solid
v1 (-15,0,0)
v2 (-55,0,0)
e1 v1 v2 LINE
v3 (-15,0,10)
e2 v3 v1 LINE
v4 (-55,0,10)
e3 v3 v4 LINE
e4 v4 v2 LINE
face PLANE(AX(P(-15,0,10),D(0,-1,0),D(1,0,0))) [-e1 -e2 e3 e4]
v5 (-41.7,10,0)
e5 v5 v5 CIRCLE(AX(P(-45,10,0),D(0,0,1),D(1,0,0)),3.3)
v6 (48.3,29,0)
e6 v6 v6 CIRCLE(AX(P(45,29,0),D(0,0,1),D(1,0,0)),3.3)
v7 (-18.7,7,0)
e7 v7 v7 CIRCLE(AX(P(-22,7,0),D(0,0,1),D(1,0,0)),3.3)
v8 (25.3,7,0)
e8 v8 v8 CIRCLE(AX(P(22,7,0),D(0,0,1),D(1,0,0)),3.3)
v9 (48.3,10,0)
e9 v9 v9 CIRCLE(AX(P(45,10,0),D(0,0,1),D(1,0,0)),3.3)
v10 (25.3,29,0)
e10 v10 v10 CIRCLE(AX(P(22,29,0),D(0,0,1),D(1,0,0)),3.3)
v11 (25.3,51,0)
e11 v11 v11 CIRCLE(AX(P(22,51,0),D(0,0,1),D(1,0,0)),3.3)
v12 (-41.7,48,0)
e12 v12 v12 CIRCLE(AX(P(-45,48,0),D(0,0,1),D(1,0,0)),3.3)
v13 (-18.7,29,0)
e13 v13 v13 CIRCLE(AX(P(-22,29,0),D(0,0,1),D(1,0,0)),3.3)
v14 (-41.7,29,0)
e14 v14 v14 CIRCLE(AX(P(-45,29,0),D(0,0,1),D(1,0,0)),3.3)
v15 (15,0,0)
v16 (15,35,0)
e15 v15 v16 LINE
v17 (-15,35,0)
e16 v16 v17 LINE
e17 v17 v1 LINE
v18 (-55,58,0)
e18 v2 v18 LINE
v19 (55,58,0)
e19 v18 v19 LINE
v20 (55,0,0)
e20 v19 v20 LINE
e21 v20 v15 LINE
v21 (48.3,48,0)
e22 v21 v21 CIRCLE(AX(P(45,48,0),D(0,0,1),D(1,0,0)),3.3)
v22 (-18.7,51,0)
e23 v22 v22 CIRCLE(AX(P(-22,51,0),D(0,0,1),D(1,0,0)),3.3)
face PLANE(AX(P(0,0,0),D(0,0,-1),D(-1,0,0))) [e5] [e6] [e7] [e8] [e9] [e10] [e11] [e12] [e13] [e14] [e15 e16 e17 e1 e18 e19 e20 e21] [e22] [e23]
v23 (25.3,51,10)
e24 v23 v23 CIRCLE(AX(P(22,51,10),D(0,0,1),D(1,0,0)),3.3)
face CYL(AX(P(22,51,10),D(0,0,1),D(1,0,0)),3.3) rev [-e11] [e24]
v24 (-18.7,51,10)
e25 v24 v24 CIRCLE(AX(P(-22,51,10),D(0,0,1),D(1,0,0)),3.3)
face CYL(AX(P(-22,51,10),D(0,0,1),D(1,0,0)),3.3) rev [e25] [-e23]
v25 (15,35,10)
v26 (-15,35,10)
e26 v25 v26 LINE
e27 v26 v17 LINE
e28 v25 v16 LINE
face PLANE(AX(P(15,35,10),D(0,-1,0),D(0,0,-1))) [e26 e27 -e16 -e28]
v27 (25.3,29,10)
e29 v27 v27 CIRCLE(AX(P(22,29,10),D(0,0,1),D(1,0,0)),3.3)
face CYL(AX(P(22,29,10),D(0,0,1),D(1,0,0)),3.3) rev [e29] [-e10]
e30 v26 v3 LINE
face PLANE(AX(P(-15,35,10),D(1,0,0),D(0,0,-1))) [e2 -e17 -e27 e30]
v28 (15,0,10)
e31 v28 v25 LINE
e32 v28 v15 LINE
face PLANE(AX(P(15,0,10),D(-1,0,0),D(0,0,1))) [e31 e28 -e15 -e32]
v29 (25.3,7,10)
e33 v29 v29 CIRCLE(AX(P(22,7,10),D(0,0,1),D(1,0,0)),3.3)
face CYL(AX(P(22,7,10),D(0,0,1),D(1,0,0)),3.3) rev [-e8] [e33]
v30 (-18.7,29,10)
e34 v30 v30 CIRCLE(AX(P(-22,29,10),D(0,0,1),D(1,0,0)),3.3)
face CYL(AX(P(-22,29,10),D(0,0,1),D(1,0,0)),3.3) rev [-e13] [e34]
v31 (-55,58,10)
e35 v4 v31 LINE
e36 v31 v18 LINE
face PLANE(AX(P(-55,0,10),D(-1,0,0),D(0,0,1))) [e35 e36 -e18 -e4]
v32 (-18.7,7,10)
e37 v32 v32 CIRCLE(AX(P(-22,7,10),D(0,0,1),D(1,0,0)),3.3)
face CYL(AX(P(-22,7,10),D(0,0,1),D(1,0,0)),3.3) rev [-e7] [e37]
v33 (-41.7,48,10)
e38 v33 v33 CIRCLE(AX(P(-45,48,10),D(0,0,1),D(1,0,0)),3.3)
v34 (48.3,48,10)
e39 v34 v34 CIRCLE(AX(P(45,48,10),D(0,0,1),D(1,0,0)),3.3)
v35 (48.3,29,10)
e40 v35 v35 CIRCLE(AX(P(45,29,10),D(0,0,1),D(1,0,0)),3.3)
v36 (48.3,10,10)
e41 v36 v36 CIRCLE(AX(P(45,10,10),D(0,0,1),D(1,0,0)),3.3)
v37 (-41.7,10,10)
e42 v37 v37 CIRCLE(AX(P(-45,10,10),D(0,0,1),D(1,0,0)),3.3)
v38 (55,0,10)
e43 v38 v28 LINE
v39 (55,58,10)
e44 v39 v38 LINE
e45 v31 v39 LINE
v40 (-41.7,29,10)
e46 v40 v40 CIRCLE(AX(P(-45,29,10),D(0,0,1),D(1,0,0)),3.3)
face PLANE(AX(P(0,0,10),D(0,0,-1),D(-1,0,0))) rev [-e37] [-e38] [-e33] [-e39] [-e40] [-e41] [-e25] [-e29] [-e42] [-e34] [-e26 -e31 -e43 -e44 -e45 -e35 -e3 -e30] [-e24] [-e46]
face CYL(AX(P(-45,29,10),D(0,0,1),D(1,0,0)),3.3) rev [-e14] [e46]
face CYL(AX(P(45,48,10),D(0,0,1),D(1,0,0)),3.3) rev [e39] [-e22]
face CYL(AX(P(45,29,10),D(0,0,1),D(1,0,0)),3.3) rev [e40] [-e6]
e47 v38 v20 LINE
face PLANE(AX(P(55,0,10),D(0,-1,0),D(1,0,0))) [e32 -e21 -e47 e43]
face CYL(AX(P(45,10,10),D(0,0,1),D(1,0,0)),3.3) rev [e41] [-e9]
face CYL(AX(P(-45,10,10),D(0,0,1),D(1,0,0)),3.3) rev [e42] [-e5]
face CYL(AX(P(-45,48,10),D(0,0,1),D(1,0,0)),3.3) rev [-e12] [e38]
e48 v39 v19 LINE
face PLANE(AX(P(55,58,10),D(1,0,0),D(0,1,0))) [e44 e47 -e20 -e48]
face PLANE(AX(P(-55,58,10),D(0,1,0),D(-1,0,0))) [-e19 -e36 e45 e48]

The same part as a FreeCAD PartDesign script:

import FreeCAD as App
import Part
import Sketcher
Q = App.Units.Quantity

doc = App.newDocument("Part")
body = doc.addObject("PartDesign::Body", "Body")

# Sketch on XY plane
sketch1 = doc.addObject("Sketcher::SketchObject", "Sketch")
body.addObject(sketch1)
sketch1.AttachmentSupport = (doc.XY_Plane, [""])
sketch1.MapMode = "FlatFace"
sketch1.addGeometry([
    Part.LineSegment(App.Vector(15, 0, 0), App.Vector(55, 0, 0)),  # 0
    Part.LineSegment(App.Vector(55, 0, 0), App.Vector(55, 58, 0)),  # 1
    Part.LineSegment(App.Vector(55, 58, 0), App.Vector(-55, 58, 0)),  # 2
    Part.LineSegment(App.Vector(-55, 58, 0), App.Vector(-55, 0, 0)),  # 3
    Part.LineSegment(App.Vector(-55, 0, 0), App.Vector(-15, 0, 0)),  # 4
    Part.LineSegment(App.Vector(-15, 0, 0), App.Vector(-15, 35, 0)),  # 5
    Part.LineSegment(App.Vector(-15, 35, 0), App.Vector(15, 35, 0)),  # 6
    Part.LineSegment(App.Vector(15, 35, 0), App.Vector(15, 0, 0)),  # 7
], False)
sketch1.addConstraint([
    Sketcher.Constraint("Coincident", 0, 2, 1, 1),
    Sketcher.Constraint("Coincident", 1, 2, 2, 1),
    Sketcher.Constraint("Coincident", 2, 2, 3, 1),
    Sketcher.Constraint("Coincident", 3, 2, 4, 1),
    Sketcher.Constraint("Coincident", 4, 2, 5, 1),
    Sketcher.Constraint("Coincident", 5, 2, 6, 1),
    Sketcher.Constraint("Coincident", 6, 2, 7, 1),
    Sketcher.Constraint("Coincident", 7, 2, 0, 1),
    Sketcher.Constraint("Horizontal", 0),
    Sketcher.Constraint("Vertical", 1),
    Sketcher.Constraint("Horizontal", 2),
    Sketcher.Constraint("Vertical", 3),
    Sketcher.Constraint("Horizontal", 4),
    Sketcher.Constraint("Vertical", 5),
    Sketcher.Constraint("Horizontal", 6),
    Sketcher.Constraint("Vertical", 7),
    Sketcher.Constraint("Symmetric", 0, 2, 3, 2, -1, 1),
    Sketcher.Constraint("Symmetric", 4, 2, 7, 2, -2),
    Sketcher.Constraint("DistanceX", 0, 1, 0, 2, Q("40 mm")),
    Sketcher.Constraint("DistanceX", 2, 2, 2, 1, Q("110 mm")),
    Sketcher.Constraint("DistanceY", 1, 1, 1, 2, Q("58 mm")),
    Sketcher.Constraint("DistanceY", 5, 1, 5, 2, Q("35 mm")),
])
pad1 = doc.addObject("PartDesign::Pad", "Pad")
body.addObject(pad1)
pad1.Profile = sketch1
pad1.Length = 10

# Sketch on XY plane
sketch2 = doc.addObject("Sketcher::SketchObject", "Sketch001")
body.addObject(sketch2)
sketch2.AttachmentSupport = (doc.XY_Plane, [""])
sketch2.MapMode = "FlatFace"
sketch2.AttachmentOffset = App.Placement(App.Vector(0, 0, 10), App.Rotation())
sketch2.addGeometry([
    Part.Circle(App.Vector(45, 10, 0), App.Vector(0, 0, 1), 3.3),  # 0
    Part.Circle(App.Vector(45, 48, 0), App.Vector(0, 0, 1), 3.3),  # 1
    Part.Circle(App.Vector(22, 7, 0), App.Vector(0, 0, 1), 3.3),  # 2
    Part.Circle(App.Vector(22, 51, 0), App.Vector(0, 0, 1), 3.3),  # 3
    Part.Circle(App.Vector(-22, 7, 0), App.Vector(0, 0, 1), 3.3),  # 4
    Part.Circle(App.Vector(-22, 51, 0), App.Vector(0, 0, 1), 3.3),  # 5
    Part.Circle(App.Vector(-45, 10, 0), App.Vector(0, 0, 1), 3.3),  # 6
    Part.Circle(App.Vector(-45, 48, 0), App.Vector(0, 0, 1), 3.3),  # 7
    Part.Circle(App.Vector(45, 563.414464, 0), App.Vector(0, 0, 1), 3.3),  # 8
    Part.Circle(App.Vector(22, 563.414464, 0), App.Vector(0, 0, 1), 3.3),  # 9
    Part.Circle(App.Vector(-22, 563.414464, 0), App.Vector(0, 0, 1), 3.3),  # 10
    Part.Circle(App.Vector(-45, 563.414464, 0), App.Vector(0, 0, 1), 3.3),  # 11
    Part.Circle(App.Vector(165.093419, -21.27001, 0), App.Vector(0, 0, 1), 3.3),  # 12
    Part.Circle(App.Vector(45, 29, 0), App.Vector(0, 0, 1), 3.3),  # 13
    Part.Circle(App.Vector(22, 29, 0), App.Vector(0, 0, 1), 3.3),  # 14
    Part.Circle(App.Vector(-22, 29, 0), App.Vector(0, 0, 1), 3.3),  # 15
    Part.Circle(App.Vector(-45, 29, 0), App.Vector(0, 0, 1), 3.3),  # 16
], False)
sketch2.addConstraint([
    Sketcher.Constraint("Equal", 0, 1),
    Sketcher.Constraint("Equal", 1, 2),
    Sketcher.Constraint("Equal", 2, 3),
    Sketcher.Constraint("Equal", 3, 4),
    Sketcher.Constraint("Equal", 4, 5),
    Sketcher.Constraint("Equal", 5, 6),
    Sketcher.Constraint("Equal", 6, 7),
    Sketcher.Constraint("Equal", 7, 8),
    Sketcher.Constraint("Equal", 8, 9),
    Sketcher.Constraint("Equal", 9, 10),
    Sketcher.Constraint("Equal", 10, 11),
    Sketcher.Constraint("Equal", 11, 12),
    Sketcher.Constraint("Equal", 12, 13),
    Sketcher.Constraint("Equal", 13, 14),
    Sketcher.Constraint("Equal", 14, 15),
    Sketcher.Constraint("Equal", 15, 16),
    Sketcher.Constraint("Symmetric", 2, 3, 4, 3, -2),
    Sketcher.Constraint("Symmetric", 3, 3, 5, 3, -2),
    Sketcher.Constraint("Symmetric", 0, 3, 6, 3, -2),
    Sketcher.Constraint("Symmetric", 1, 3, 7, 3, -2),
    Sketcher.Constraint("Symmetric", 9, 3, 10, 3, -2),
    Sketcher.Constraint("Symmetric", 8, 3, 11, 3, -2),
    Sketcher.Constraint("Symmetric", 14, 3, 15, 3, -2),
    Sketcher.Constraint("Symmetric", 13, 3, 16, 3, -2),
    Sketcher.Constraint("Horizontal", 8, 3, 9, 3),
    Sketcher.Constraint("Horizontal", 13, 3, 14, 3),
    Sketcher.Constraint("Vertical", 0, 3, 1, 3),
    Sketcher.Constraint("Vertical", 2, 3, 3, 3),
    Sketcher.Constraint("Vertical", 1, 3, 8, 3),
    Sketcher.Constraint("Vertical", 3, 3, 9, 3),
    Sketcher.Constraint("Vertical", 8, 3, 13, 3),
    Sketcher.Constraint("Vertical", 9, 3, 14, 3),
    Sketcher.Constraint("Diameter", 0, Q("6.6 mm")),
    Sketcher.Constraint("DistanceX", -1, 1, 0, 3, Q("45 mm")),
    Sketcher.Constraint("DistanceY", -1, 1, 0, 3, Q("10 mm")),
    Sketcher.Constraint("DistanceY", -1, 1, 1, 3, Q("48 mm")),
    Sketcher.Constraint("DistanceX", -1, 1, 2, 3, Q("22 mm")),
    Sketcher.Constraint("DistanceY", -1, 1, 2, 3, Q("7 mm")),
    Sketcher.Constraint("DistanceY", -1, 1, 3, 3, Q("51 mm")),
    Sketcher.Constraint("DistanceY", -1, 1, 13, 3, Q("29 mm")),
    Sketcher.Constraint("DistanceX", -1, 1, 12, 3, Q("165.093419 mm")),
    Sketcher.Constraint("DistanceY", 12, 3, -1, 1, Q("21.27001 mm")),
    Sketcher.Constraint("DistanceY", -1, 1, 8, 3, Q("563.414464 mm")),
])
doc.recompute()
hole = doc.addObject("PartDesign::Hole", "Hole")
body.addObject(hole)
hole.Profile = sketch2
hole.ThreadType = "None"
hole.Diameter = 6.6
hole.DepthType = "ThroughAll"

doc.recompute()
